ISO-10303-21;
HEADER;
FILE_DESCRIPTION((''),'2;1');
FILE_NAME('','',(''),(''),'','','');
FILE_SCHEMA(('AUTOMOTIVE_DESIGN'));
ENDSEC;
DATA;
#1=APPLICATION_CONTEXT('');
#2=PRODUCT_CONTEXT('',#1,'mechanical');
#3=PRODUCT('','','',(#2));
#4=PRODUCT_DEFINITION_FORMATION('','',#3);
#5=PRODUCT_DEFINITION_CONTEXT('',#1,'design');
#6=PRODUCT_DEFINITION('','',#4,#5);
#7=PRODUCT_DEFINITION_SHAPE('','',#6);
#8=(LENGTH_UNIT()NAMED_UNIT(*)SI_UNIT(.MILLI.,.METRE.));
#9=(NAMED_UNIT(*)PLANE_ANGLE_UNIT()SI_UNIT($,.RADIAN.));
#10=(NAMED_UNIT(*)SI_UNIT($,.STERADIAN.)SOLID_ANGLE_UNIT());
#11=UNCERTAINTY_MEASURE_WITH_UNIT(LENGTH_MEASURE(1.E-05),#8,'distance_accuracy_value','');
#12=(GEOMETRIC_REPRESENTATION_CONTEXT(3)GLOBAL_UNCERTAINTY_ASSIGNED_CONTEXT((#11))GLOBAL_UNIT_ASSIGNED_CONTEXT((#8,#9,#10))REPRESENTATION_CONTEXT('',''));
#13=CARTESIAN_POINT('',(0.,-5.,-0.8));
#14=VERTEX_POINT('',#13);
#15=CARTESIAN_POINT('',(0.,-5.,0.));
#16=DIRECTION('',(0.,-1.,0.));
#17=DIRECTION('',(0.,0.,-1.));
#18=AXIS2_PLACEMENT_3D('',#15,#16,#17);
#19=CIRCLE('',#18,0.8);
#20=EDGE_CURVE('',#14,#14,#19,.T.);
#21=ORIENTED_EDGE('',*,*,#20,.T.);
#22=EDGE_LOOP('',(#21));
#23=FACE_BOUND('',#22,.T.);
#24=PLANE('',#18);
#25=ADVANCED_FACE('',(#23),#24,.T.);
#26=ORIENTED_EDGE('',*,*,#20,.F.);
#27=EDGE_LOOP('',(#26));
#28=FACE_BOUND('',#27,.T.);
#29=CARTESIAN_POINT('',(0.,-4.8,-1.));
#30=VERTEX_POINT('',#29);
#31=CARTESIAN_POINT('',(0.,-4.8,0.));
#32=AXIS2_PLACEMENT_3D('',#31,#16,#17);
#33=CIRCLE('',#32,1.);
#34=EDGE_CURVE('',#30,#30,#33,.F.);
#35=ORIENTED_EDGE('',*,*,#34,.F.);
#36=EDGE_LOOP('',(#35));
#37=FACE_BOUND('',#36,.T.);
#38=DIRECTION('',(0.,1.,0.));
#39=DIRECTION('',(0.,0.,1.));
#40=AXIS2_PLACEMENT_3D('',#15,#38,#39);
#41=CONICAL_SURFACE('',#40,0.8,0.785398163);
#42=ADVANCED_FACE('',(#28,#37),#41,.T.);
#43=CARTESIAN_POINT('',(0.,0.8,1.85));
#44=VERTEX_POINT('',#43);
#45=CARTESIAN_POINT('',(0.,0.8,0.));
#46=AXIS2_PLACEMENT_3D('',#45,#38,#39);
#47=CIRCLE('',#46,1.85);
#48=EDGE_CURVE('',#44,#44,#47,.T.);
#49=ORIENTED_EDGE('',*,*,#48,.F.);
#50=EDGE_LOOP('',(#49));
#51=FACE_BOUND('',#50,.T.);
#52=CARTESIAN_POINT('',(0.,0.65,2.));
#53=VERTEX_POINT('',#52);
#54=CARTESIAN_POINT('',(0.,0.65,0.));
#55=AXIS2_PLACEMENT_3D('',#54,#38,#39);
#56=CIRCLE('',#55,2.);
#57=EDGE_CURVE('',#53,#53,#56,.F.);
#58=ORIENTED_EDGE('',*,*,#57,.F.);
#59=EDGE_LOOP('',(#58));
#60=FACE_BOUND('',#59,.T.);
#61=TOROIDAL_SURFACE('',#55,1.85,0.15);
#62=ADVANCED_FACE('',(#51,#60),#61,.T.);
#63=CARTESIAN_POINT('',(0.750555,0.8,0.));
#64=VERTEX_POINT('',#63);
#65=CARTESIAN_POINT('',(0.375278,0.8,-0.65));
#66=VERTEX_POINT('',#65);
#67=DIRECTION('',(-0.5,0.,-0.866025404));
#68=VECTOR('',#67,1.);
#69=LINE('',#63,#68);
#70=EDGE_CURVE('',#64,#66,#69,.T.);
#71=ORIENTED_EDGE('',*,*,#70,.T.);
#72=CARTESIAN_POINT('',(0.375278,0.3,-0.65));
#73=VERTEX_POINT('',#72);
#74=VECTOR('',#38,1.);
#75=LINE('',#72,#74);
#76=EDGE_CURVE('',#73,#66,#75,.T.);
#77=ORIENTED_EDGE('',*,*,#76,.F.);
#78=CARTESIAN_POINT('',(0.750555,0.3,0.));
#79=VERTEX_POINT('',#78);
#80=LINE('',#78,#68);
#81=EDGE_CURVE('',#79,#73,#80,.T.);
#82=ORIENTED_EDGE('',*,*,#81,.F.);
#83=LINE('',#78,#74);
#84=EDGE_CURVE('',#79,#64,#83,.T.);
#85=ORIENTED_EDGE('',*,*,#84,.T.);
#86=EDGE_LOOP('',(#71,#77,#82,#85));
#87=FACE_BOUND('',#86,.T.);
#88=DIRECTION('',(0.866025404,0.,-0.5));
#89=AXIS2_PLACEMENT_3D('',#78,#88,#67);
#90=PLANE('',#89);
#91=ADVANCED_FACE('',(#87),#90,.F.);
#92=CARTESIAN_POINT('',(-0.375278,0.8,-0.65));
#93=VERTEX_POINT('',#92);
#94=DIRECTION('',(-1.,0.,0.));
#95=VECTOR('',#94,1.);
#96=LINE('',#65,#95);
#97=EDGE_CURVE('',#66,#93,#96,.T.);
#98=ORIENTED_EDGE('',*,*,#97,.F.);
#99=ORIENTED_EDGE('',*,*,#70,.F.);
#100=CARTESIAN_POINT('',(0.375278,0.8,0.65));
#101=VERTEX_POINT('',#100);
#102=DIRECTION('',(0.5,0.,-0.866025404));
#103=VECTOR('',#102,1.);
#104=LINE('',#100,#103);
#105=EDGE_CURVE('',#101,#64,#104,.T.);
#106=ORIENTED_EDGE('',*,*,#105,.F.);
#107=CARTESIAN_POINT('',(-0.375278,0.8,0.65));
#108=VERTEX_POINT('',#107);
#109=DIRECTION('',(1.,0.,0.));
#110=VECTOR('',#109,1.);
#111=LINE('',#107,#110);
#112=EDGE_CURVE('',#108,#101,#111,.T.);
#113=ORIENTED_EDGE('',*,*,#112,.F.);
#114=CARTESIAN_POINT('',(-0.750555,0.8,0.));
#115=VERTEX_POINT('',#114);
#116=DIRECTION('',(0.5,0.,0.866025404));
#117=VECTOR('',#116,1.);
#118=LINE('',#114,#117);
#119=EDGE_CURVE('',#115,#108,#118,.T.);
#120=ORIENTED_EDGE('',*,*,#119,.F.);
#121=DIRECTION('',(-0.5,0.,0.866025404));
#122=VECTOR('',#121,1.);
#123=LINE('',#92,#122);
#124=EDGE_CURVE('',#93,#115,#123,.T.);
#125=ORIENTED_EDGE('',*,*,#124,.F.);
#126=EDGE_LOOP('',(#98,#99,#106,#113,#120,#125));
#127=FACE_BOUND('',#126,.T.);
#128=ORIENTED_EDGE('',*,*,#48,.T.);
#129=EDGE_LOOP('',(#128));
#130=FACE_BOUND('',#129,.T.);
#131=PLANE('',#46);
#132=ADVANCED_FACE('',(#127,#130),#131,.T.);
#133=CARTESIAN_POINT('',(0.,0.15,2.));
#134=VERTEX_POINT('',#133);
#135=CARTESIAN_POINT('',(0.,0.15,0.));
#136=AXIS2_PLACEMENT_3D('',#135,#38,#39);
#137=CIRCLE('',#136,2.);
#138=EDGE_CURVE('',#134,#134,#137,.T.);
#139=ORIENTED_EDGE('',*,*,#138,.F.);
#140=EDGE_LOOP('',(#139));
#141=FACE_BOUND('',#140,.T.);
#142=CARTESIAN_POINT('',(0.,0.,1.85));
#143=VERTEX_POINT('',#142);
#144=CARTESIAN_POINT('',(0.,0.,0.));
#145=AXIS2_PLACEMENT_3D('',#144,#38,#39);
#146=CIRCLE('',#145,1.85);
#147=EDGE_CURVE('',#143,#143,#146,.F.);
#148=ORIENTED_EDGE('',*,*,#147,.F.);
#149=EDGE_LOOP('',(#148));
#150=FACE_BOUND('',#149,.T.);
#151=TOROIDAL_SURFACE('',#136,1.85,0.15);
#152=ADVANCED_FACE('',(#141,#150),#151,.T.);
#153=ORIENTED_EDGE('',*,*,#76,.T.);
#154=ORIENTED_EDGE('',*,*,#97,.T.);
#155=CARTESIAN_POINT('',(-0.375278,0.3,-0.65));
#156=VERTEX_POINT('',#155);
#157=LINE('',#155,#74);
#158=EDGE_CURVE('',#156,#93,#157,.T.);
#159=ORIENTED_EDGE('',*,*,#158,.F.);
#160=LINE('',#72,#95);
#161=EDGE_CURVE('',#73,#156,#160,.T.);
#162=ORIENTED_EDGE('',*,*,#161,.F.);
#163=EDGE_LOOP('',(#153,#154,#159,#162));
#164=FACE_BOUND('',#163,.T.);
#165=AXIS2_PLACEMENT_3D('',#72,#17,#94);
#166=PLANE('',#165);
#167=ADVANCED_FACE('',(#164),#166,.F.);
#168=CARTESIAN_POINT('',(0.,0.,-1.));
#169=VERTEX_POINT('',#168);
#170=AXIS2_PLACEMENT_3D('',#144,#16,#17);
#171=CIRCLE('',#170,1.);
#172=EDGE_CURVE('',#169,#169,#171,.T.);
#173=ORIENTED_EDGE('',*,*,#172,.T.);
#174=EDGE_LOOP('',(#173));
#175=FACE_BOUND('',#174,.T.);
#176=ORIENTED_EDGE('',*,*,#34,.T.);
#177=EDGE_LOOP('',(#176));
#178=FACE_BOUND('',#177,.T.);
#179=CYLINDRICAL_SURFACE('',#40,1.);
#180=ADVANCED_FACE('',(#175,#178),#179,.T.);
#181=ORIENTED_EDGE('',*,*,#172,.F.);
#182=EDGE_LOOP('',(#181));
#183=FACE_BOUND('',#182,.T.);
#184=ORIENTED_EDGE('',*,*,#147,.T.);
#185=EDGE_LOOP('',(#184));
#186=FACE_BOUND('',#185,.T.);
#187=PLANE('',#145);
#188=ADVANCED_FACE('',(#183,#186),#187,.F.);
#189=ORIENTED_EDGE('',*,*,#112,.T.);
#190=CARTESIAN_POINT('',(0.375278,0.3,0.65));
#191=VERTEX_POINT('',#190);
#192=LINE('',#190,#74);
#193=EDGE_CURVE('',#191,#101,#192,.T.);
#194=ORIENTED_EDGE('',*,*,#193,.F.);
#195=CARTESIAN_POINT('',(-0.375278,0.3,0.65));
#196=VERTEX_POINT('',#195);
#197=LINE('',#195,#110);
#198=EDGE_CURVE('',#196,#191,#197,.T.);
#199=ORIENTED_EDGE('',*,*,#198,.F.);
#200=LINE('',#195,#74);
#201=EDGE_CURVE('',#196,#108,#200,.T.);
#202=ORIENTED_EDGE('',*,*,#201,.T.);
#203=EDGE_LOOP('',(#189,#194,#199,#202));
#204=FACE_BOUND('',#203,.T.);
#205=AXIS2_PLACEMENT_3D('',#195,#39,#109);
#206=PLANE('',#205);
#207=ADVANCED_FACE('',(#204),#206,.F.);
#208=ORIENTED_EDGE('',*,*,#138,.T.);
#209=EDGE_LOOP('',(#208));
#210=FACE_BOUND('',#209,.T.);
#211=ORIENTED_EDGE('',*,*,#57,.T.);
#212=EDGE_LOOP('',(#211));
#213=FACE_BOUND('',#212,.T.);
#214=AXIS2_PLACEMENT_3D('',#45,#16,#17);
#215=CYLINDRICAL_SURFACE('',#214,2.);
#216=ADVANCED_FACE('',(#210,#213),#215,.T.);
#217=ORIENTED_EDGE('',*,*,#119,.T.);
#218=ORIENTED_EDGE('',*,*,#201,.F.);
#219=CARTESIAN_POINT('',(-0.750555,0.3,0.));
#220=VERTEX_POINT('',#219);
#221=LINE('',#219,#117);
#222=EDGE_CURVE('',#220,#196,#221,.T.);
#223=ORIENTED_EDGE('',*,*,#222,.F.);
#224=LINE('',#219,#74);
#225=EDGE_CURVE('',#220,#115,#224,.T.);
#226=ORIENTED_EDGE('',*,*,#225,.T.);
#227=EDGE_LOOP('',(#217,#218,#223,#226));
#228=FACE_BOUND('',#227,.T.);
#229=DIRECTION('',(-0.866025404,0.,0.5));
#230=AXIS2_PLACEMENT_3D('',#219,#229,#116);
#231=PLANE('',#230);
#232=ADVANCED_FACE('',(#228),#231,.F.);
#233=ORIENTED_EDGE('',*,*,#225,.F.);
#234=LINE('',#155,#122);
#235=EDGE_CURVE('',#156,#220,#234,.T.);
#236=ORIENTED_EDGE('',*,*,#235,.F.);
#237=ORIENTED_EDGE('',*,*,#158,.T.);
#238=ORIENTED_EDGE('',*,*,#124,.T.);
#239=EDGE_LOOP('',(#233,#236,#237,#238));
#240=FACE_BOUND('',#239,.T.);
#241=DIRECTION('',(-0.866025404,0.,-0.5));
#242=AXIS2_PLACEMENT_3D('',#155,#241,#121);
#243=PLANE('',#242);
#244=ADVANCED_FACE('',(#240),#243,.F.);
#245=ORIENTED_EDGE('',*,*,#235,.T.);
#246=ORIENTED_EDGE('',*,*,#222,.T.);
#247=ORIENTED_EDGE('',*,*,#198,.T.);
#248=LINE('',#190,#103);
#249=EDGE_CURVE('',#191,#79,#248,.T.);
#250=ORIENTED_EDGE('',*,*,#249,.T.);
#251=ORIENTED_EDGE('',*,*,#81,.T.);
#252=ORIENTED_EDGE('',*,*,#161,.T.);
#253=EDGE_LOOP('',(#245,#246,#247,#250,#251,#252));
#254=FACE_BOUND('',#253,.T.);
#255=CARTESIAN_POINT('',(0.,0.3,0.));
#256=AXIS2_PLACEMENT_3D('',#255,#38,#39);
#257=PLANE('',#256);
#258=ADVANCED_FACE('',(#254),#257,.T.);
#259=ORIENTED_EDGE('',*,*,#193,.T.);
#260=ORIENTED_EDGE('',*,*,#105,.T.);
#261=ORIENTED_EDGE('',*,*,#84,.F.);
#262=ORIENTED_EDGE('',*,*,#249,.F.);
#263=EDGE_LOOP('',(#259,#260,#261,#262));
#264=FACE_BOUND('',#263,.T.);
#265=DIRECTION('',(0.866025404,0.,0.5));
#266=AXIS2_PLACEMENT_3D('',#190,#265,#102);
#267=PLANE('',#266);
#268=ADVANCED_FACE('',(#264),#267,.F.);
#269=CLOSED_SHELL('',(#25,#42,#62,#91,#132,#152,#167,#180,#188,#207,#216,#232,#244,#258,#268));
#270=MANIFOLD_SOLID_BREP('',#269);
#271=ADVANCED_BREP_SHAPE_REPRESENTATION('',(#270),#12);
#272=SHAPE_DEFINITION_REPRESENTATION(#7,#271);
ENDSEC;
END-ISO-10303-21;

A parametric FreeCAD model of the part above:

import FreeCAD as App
import Part
import Sketcher
Q = App.Units.Quantity


def edges_at(feature, points):
    """Names of the edges that pass closest to the given points."""
    edges = feature.Shape.Edges
    near = lambda p: min(range(len(edges)), key=lambda i: edges[i].distToShape(Part.Vertex(*p))[0])
    return sorted({f"Edge{near(p) + 1}" for p in points})


def add_polygon(sketch, points):
    """Adds a closed chain of lines whose ends are joined by coincident constraints."""
    first, n = sketch.GeometryCount, len(points)
    for a, b in zip(points, points[1:] + points[:1]):
        sketch.addGeometry(Part.LineSegment(App.Vector(*a, 0), App.Vector(*b, 0)), False)
    for i in range(n):
        sketch.addConstraint(Sketcher.Constraint("Coincident", first + i, 2, first + (i + 1) % n, 1))

doc = App.newDocument("Part")
params = doc.addObject("Spreadsheet::Sheet", "Params")
for row, (alias, value) in enumerate([
    ("sketch1_diameter", "4 mm"),
    ("pad1_length", "0.8 mm"),
    ("sketch2_diameter", "2 mm"),
    ("pad2_length", "5 mm"),
    ("fillet_radius", "0.15 mm"),
    ("chamfer_size", "0.2 mm"),
    ("pocket1_length", "0.5 mm"),
], start=1):
    params.set(f"A{row}", alias)
    params.set(f"B{row}", "=" + value)
    params.setAlias(f"B{row}", alias)

body = doc.addObject("PartDesign::Body", "Body")

sketch1 = body.newObject("Sketcher::SketchObject", "Sketch")
sketch1.AttachmentSupport = (doc.getObject("XZ_Plane"), [""])
sketch1.MapMode = "FlatFace"
sketch1.addGeometry(Part.Circle(App.Vector(0, 0, 0), App.Vector(0, 0, 1), 2), False)
sketch1.addConstraint([
    Sketcher.Constraint("Coincident", 0, 3, -1, 1),
    Sketcher.Constraint("Diameter", 0, Q("4 mm")),
])
sketch1.setExpression("Constraints[1]", "Params.sketch1_diameter")
pad1 = body.newObject("PartDesign::Pad", "Pad")
pad1.Profile = sketch1
pad1.setExpression("Length", "Params.pad1_length")
pad1.Reversed = True

sketch2 = body.newObject("Sketcher::SketchObject", "Sketch001")
sketch2.AttachmentSupport = (doc.getObject("XZ_Plane"), [""])
sketch2.MapMode = "FlatFace"
sketch2.addGeometry(Part.Circle(App.Vector(0, 0, 0), App.Vector(0, 0, 1), 1), False)
sketch2.addConstraint([
    Sketcher.Constraint("Coincident", 0, 3, -1, 1),
    Sketcher.Constraint("Diameter", 0, Q("2 mm")),
])
sketch2.setExpression("Constraints[1]", "Params.sketch2_diameter")
pad2 = body.newObject("PartDesign::Pad", "Pad001")
pad2.Profile = sketch2
pad2.setExpression("Length", "Params.pad2_length")
doc.recompute()

fillet = body.newObject("PartDesign::Fillet", "Fillet")
fillet.Base = (pad2, edges_at(pad2, [(-2, 0, 0), (-2, 0.8, 0)]))
fillet.setExpression("Radius", "Params.fillet_radius")
doc.recompute()

chamfer = body.newObject("PartDesign::Chamfer", "Chamfer")
chamfer.Base = (fillet, edges_at(fillet, [(-1, -5, 0)]))
chamfer.setExpression("Size", "Params.chamfer_size")

sketch3 = body.newObject("Sketcher::SketchObject", "Sketch002")
sketch3.AttachmentSupport = (doc.getObject("XZ_Plane"), [""])
sketch3.MapMode = "FlatFace"
sketch3.AttachmentOffset = App.Placement(App.Vector(0, 0, -0.8), App.Rotation())
add_polygon(sketch3, [(0.750555, 0), (0.375278, -0.65), (-0.375278, -0.65), (-0.750555, 0), (-0.375278, 0.65), (0.375278, 0.65)])
sketch3.addConstraint([
    Sketcher.Constraint("Horizontal", 1),
    Sketcher.Constraint("Horizontal", 4),
    Sketcher.Constraint("Symmetric", 0, 2, 3, 2, -1, 1),
    Sketcher.Constraint("Symmetric", 2, 2, 5, 2, -1, 1),
    Sketcher.Constraint("PointOnObject", 2, 2, -1),
    Sketcher.Constraint("Parallel", 2, 5),
    Sketcher.Constraint("Vertical", 1, 2, 3, 2),
    Sketcher.Constraint("Angle", 0, Q("-120 deg")),
    Sketcher.Constraint("DistanceY", 1, 2, 3, 2, Q("1.3 mm")),
    Sketcher.Constraint("DistanceX", 1, 2, 1, 1, Q("0.750555 mm")),
])
pocket1 = body.newObject("PartDesign::Pocket", "Pocket")
pocket1.Profile = sketch3
pocket1.setExpression("Length", "Params.pocket1_length")
pocket1.Reversed = True

doc.recompute()
